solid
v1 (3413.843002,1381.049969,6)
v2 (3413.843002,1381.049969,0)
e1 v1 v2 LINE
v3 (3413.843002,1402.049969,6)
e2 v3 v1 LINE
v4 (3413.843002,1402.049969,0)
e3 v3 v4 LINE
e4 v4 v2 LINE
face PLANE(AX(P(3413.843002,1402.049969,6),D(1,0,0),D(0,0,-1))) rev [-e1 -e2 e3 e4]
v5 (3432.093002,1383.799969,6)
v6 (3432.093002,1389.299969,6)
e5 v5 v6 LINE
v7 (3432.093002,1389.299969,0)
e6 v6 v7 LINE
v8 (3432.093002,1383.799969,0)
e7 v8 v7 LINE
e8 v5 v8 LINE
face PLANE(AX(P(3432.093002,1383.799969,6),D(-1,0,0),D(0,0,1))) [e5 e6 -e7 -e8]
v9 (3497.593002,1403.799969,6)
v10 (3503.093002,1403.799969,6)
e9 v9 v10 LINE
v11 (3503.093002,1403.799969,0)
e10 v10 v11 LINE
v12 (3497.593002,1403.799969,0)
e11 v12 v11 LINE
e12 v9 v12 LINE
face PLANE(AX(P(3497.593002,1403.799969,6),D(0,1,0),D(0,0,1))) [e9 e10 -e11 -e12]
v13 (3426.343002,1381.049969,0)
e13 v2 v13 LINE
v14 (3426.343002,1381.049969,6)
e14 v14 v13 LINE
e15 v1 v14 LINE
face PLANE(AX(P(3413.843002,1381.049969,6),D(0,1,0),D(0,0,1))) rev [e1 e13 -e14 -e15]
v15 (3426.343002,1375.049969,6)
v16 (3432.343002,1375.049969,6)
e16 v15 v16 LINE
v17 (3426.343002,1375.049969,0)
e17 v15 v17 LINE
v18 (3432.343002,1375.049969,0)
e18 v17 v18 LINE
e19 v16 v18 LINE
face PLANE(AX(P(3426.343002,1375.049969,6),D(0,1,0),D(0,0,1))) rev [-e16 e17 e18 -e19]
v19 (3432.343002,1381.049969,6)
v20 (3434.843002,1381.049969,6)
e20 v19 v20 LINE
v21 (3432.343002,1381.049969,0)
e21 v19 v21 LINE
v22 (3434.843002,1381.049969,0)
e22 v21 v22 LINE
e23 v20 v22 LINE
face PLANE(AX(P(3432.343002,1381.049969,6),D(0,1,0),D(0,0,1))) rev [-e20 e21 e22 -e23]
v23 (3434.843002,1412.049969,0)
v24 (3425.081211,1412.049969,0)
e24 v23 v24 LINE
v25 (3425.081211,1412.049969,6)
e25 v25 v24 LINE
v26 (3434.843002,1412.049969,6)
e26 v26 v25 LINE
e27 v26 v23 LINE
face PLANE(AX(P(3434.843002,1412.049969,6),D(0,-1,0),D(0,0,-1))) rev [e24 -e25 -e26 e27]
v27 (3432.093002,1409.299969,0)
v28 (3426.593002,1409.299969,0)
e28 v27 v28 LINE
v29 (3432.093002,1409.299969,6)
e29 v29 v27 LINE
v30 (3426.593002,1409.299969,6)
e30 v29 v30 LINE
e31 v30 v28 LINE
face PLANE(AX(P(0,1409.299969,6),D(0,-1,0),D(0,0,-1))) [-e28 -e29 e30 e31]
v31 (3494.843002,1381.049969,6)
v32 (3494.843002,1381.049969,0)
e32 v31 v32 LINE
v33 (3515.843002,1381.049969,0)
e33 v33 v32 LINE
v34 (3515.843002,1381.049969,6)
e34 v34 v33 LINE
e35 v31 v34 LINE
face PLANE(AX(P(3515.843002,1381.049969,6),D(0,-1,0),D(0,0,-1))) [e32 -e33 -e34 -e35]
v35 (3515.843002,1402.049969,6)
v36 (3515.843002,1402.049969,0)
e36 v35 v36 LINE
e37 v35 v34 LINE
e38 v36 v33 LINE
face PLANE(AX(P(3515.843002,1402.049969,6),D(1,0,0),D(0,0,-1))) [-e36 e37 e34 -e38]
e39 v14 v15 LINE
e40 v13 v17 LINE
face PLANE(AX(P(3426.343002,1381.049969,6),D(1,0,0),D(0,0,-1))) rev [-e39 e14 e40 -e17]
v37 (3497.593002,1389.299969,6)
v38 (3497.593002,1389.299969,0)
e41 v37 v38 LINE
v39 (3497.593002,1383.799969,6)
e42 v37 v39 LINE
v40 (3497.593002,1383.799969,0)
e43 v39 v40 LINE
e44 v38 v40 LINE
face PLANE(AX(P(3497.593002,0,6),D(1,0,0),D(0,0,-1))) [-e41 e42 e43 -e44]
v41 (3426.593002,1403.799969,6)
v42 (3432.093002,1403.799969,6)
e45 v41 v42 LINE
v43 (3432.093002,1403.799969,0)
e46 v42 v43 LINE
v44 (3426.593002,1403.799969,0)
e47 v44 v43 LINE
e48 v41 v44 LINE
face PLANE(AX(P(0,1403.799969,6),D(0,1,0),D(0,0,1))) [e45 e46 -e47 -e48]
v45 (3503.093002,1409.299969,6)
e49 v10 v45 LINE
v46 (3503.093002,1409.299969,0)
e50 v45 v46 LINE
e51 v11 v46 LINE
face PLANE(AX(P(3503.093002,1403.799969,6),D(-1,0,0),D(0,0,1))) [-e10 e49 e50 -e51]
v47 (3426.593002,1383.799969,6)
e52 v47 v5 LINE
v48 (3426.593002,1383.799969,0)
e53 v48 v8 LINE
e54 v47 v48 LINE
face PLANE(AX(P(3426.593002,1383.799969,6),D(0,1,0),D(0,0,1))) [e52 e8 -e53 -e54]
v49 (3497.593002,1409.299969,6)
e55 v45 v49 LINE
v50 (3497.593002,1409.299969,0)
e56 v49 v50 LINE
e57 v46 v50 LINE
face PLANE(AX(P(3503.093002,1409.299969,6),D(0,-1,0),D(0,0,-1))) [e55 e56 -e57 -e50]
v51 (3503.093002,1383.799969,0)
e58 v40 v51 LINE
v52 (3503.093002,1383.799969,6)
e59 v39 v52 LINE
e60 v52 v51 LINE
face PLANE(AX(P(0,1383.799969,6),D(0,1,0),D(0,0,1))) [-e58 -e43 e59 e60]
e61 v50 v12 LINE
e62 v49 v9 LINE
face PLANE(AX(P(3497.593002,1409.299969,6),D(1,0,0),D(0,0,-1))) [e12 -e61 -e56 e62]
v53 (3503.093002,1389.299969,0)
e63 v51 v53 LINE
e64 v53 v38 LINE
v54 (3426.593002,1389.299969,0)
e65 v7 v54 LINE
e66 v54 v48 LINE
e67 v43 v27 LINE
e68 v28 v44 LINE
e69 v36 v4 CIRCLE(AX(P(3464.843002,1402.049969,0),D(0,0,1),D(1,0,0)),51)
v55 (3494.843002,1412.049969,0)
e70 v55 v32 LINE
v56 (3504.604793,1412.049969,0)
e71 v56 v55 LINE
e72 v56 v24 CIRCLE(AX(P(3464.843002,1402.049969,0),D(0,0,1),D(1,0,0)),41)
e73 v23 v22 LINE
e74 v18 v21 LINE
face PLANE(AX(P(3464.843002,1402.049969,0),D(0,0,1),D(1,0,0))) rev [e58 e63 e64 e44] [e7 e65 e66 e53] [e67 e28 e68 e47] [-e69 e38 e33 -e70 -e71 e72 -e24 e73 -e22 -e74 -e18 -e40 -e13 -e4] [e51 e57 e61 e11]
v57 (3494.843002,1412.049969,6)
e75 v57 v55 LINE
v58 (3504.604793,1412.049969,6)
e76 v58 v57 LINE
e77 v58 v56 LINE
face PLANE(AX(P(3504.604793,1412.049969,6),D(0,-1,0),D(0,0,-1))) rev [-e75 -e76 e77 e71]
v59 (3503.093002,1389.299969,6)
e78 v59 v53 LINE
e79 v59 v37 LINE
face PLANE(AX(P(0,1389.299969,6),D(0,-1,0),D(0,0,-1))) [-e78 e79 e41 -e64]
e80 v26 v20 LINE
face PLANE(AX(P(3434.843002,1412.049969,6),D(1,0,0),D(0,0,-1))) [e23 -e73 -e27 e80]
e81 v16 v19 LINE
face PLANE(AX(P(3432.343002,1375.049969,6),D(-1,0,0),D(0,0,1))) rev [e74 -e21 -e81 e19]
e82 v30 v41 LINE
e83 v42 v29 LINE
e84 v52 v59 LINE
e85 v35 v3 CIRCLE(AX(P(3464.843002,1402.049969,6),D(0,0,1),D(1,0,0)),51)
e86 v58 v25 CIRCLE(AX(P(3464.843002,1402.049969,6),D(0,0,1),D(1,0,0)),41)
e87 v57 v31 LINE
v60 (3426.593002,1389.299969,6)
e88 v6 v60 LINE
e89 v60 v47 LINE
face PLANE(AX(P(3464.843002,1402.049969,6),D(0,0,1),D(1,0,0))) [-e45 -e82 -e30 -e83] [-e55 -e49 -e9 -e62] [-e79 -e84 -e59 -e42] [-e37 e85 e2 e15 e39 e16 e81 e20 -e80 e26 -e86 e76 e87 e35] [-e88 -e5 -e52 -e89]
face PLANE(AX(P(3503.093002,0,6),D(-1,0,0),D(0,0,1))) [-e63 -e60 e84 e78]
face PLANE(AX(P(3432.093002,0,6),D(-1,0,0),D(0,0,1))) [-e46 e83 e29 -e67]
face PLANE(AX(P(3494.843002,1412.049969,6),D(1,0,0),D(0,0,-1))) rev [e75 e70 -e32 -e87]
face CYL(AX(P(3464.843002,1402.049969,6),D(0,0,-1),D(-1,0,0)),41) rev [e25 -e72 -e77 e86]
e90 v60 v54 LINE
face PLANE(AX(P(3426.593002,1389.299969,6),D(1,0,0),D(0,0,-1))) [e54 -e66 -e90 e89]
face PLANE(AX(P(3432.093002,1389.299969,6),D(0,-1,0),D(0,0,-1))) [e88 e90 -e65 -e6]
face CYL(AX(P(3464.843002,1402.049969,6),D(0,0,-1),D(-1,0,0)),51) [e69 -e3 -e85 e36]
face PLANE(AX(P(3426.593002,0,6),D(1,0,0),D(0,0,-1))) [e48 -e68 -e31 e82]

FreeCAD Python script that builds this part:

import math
import FreeCAD as App
import Part
import Sketcher


def add_polygon(sketch, points):
    """Adds a closed chain of lines whose ends are joined by coincident constraints."""
    first, n = sketch.GeometryCount, len(points)
    for a, b in zip(points, points[1:] + points[:1]):
        sketch.addGeometry(Part.LineSegment(App.Vector(*a, 0), App.Vector(*b, 0)), False)
    for i in range(n):
        sketch.addConstraint(Sketcher.Constraint("Coincident", first + i, 2, first + (i + 1) % n, 1))

doc = App.newDocument("Part")
body = doc.addObject("PartDesign::Body", "Body")

sketch1 = doc.addObject("Sketcher::SketchObject", "Sketch")
body.addObject(sketch1)
sketch1.AttachmentSupport = (doc.XY_Plane, [""])
sketch1.MapMode = "FlatFace"
sketch1.addGeometry(Part.LineSegment(App.Vector(3413.843002, 1402.049969, 0), App.Vector(3413.843002, 1381.049969, 0)), False)
sketch1.addGeometry(Part.LineSegment(App.Vector(3413.843002, 1381.049969, 0), App.Vector(3426.343002, 1381.049969, 0)), False)
sketch1.addGeometry(Part.LineSegment(App.Vector(3426.343002, 1381.049969, 0), App.Vector(3426.343002, 1375.049969, 0)), False)
sketch1.addGeometry(Part.LineSegment(App.Vector(3426.343002, 1375.049969, 0), App.Vector(3432.343002, 1375.049969, 0)), False)
sketch1.addGeometry(Part.LineSegment(App.Vector(3432.343002, 1375.049969, 0), App.Vector(3432.343002, 1381.049969, 0)), False)
sketch1.addGeometry(Part.LineSegment(App.Vector(3432.343002, 1381.049969, 0), App.Vector(3434.843002, 1381.049969, 0)), False)
sketch1.addGeometry(Part.LineSegment(App.Vector(3434.843002, 1381.049969, 0), App.Vector(3434.843002, 1412.049969, 0)), False)
sketch1.addGeometry(Part.LineSegment(App.Vector(3434.843002, 1412.049969, 0), App.Vector(3425.081211, 1412.049969, 0)), False)
sketch1.addGeometry(Part.ArcOfCircle(Part.Circle(App.Vector(3464.843002, 1402.049969, 0), App.Vector(0, 0, 1), 41), math.radians(14.116981), math.radians(165.883019)), False)
sketch1.addGeometry(Part.LineSegment(App.Vector(3504.604793, 1412.049969, 0), App.Vector(3494.843002, 1412.049969, 0)), False)
sketch1.addGeometry(Part.LineSegment(App.Vector(3494.843002, 1412.049969, 0), App.Vector(3494.843002, 1381.049969, 0)), False)
sketch1.addGeometry(Part.LineSegment(App.Vector(3494.843002, 1381.049969, 0), App.Vector(3515.843002, 1381.049969, 0)), False)
sketch1.addGeometry(Part.LineSegment(App.Vector(3515.843002, 1381.049969, 0), App.Vector(3515.843002, 1402.049969, 0)), False)
sketch1.addGeometry(Part.ArcOfCircle(Part.Circle(App.Vector(3464.843002, 1402.049969, 0), App.Vector(0, 0, 1), 51), math.radians(0), math.radians(180)), False)
add_polygon(sketch1, [(3432.093002, 1383.799969), (3426.593002, 1383.799969), (3426.593002, 1389.299969), (3432.093002, 1389.299969)])
add_polygon(sketch1, [(3503.093002, 1383.799969), (3497.593002, 1383.799969), (3497.593002, 1389.299969), (3503.093002, 1389.299969)])
add_polygon(sketch1, [(3432.093002, 1403.799969), (3426.593002, 1403.799969), (3426.593002, 1409.299969), (3432.093002, 1409.299969)])
add_polygon(sketch1, [(3503.093002, 1403.799969), (3497.593002, 1403.799969), (3497.593002, 1409.299969), (3503.093002, 1409.299969)])
sketch1.addConstraint([
    Sketcher.Constraint("Coincident", 0, 2, 1, 1),
    Sketcher.Constraint("Coincident", 1, 2, 2, 1),
    Sketcher.Constraint("Coincident", 2, 2, 3, 1),
    Sketcher.Constraint("Coincident", 3, 2, 4, 1),
    Sketcher.Constraint("Coincident", 4, 2, 5, 1),
    Sketcher.Constraint("Coincident", 5, 2, 6, 1),
    Sketcher.Constraint("Coincident", 6, 2, 7, 1),
    Sketcher.Constraint("Coincident", 7, 2, 8, 2),
    Sketcher.Constraint("Coincident", 8, 1, 9, 1),
    Sketcher.Constraint("Coincident", 9, 2, 10, 1),
    Sketcher.Constraint("Coincident", 10, 2, 11, 1),
    Sketcher.Constraint("Coincident", 11, 2, 12, 1),
    Sketcher.Constraint("Tangent", 12, 2, 13, 1),
    Sketcher.Constraint("Tangent", 13, 2, 0, 1),
    Sketcher.Constraint("Vertical", 0),
    Sketcher.Constraint("Horizontal", 1),
    Sketcher.Constraint("Vertical", 2),
    Sketcher.Constraint("Horizontal", 3),
    Sketcher.Constraint("Vertical", 4),
    Sketcher.Constraint("Horizontal", 5),
    Sketcher.Constraint("Vertical", 6),
    Sketcher.Constraint("Horizontal", 7),
    Sketcher.Constraint("Horizontal", 9),
    Sketcher.Constraint("Vertical", 10),
    Sketcher.Constraint("Horizontal", 11),
    Sketcher.Constraint("Vertical", 12),
    Sketcher.Constraint("Horizontal", 14),
    Sketcher.Constraint("Vertical", 15),
    Sketcher.Constraint("Horizontal", 16),
    Sketcher.Constraint("Vertical", 17),
    Sketcher.Constraint("Horizontal", 18),
    Sketcher.Constraint("Vertical", 19),
    Sketcher.Constraint("Horizontal", 20),
    Sketcher.Constraint("Vertical", 21),
    Sketcher.Constraint("Horizontal", 22),
    Sketcher.Constraint("Vertical", 23),
    Sketcher.Constraint("Horizontal", 24),
    Sketcher.Constraint("Vertical", 25),
    Sketcher.Constraint("Horizontal", 26),
    Sketcher.Constraint("Vertical", 27),
    Sketcher.Constraint("Horizontal", 28),
    Sketcher.Constraint("Vertical", 29),
    Sketcher.Constraint("Coincident", 13, 3, 8, 3),
    Sketcher.Constraint("Horizontal", 1, 2, 4, 2),
    Sketcher.Constraint("Horizontal", 7, 2, 8, 1),
    Sketcher.Constraint("Horizontal", 5, 2, 10, 2),
    Sketcher.Constraint("Horizontal", 17, 2, 18, 2),
    Sketcher.Constraint("Horizontal", 16, 2, 19, 2),
    Sketcher.Constraint("Horizontal", 25, 2, 26, 2),
    Sketcher.Constraint("Horizontal", 24, 2, 27, 2),
    Sketcher.Constraint("Vertical", 15, 2, 22, 2),
    Sketcher.Constraint("Vertical", 17, 2, 24, 2),
    Sketcher.Constraint("Vertical", 19, 2, 26, 2),
    Sketcher.Constraint("Vertical", 21, 2, 28, 2),
    Sketcher.Constraint("Equal", 7, 9),
    Sketcher.Constraint("Equal", 16, 18),
    Sketcher.Constraint("Equal", 11, 0),
    Sketcher.Constraint("Equal", 3, 2),
    Sketcher.Constraint("Equal", 28, 15),
    Sketcher.Constraint("Equal", 21, 23),
    Sketcher.Constraint("Radius", 8, 41.0),
    Sketcher.Constraint("Radius", 13, 51.0),
    Sketcher.Constraint("DistanceX", 3, 1, 3, 2, 6.0),
    Sketcher.Constraint("DistanceX", 11, 1, 11, 2, 21.0),
    Sketcher.Constraint("DistanceY", 6, 1, 6, 2, 31.0),
    Sketcher.Constraint("DistanceX", 1, 1, 1, 2, 12.5),
    Sketcher.Constraint("DistanceX", 14, 2, 14, 1, 5.5),
    Sketcher.Constraint("DistanceY", 15, 2, 23, 2, 20.0),
    Sketcher.Constraint("DistanceX", 1, 2, 14, 2, 0.25),
    Sketcher.Constraint("DistanceY", 1, 2, 14, 2, 2.75),
    Sketcher.Constraint("DistanceX", 10, 2, 18, 2, 2.75),
    Sketcher.Constraint("DistanceY", -1, 1, 8, 3, 1402.049969),
    Sketcher.Constraint("DistanceX", -1, 1, 7, 2, 3425.081211),
])
pad1 = doc.addObject("PartDesign::Pad", "Pad")
body.addObject(pad1)
pad1.Profile = sketch1
pad1.Length = 6

doc.recompute()
